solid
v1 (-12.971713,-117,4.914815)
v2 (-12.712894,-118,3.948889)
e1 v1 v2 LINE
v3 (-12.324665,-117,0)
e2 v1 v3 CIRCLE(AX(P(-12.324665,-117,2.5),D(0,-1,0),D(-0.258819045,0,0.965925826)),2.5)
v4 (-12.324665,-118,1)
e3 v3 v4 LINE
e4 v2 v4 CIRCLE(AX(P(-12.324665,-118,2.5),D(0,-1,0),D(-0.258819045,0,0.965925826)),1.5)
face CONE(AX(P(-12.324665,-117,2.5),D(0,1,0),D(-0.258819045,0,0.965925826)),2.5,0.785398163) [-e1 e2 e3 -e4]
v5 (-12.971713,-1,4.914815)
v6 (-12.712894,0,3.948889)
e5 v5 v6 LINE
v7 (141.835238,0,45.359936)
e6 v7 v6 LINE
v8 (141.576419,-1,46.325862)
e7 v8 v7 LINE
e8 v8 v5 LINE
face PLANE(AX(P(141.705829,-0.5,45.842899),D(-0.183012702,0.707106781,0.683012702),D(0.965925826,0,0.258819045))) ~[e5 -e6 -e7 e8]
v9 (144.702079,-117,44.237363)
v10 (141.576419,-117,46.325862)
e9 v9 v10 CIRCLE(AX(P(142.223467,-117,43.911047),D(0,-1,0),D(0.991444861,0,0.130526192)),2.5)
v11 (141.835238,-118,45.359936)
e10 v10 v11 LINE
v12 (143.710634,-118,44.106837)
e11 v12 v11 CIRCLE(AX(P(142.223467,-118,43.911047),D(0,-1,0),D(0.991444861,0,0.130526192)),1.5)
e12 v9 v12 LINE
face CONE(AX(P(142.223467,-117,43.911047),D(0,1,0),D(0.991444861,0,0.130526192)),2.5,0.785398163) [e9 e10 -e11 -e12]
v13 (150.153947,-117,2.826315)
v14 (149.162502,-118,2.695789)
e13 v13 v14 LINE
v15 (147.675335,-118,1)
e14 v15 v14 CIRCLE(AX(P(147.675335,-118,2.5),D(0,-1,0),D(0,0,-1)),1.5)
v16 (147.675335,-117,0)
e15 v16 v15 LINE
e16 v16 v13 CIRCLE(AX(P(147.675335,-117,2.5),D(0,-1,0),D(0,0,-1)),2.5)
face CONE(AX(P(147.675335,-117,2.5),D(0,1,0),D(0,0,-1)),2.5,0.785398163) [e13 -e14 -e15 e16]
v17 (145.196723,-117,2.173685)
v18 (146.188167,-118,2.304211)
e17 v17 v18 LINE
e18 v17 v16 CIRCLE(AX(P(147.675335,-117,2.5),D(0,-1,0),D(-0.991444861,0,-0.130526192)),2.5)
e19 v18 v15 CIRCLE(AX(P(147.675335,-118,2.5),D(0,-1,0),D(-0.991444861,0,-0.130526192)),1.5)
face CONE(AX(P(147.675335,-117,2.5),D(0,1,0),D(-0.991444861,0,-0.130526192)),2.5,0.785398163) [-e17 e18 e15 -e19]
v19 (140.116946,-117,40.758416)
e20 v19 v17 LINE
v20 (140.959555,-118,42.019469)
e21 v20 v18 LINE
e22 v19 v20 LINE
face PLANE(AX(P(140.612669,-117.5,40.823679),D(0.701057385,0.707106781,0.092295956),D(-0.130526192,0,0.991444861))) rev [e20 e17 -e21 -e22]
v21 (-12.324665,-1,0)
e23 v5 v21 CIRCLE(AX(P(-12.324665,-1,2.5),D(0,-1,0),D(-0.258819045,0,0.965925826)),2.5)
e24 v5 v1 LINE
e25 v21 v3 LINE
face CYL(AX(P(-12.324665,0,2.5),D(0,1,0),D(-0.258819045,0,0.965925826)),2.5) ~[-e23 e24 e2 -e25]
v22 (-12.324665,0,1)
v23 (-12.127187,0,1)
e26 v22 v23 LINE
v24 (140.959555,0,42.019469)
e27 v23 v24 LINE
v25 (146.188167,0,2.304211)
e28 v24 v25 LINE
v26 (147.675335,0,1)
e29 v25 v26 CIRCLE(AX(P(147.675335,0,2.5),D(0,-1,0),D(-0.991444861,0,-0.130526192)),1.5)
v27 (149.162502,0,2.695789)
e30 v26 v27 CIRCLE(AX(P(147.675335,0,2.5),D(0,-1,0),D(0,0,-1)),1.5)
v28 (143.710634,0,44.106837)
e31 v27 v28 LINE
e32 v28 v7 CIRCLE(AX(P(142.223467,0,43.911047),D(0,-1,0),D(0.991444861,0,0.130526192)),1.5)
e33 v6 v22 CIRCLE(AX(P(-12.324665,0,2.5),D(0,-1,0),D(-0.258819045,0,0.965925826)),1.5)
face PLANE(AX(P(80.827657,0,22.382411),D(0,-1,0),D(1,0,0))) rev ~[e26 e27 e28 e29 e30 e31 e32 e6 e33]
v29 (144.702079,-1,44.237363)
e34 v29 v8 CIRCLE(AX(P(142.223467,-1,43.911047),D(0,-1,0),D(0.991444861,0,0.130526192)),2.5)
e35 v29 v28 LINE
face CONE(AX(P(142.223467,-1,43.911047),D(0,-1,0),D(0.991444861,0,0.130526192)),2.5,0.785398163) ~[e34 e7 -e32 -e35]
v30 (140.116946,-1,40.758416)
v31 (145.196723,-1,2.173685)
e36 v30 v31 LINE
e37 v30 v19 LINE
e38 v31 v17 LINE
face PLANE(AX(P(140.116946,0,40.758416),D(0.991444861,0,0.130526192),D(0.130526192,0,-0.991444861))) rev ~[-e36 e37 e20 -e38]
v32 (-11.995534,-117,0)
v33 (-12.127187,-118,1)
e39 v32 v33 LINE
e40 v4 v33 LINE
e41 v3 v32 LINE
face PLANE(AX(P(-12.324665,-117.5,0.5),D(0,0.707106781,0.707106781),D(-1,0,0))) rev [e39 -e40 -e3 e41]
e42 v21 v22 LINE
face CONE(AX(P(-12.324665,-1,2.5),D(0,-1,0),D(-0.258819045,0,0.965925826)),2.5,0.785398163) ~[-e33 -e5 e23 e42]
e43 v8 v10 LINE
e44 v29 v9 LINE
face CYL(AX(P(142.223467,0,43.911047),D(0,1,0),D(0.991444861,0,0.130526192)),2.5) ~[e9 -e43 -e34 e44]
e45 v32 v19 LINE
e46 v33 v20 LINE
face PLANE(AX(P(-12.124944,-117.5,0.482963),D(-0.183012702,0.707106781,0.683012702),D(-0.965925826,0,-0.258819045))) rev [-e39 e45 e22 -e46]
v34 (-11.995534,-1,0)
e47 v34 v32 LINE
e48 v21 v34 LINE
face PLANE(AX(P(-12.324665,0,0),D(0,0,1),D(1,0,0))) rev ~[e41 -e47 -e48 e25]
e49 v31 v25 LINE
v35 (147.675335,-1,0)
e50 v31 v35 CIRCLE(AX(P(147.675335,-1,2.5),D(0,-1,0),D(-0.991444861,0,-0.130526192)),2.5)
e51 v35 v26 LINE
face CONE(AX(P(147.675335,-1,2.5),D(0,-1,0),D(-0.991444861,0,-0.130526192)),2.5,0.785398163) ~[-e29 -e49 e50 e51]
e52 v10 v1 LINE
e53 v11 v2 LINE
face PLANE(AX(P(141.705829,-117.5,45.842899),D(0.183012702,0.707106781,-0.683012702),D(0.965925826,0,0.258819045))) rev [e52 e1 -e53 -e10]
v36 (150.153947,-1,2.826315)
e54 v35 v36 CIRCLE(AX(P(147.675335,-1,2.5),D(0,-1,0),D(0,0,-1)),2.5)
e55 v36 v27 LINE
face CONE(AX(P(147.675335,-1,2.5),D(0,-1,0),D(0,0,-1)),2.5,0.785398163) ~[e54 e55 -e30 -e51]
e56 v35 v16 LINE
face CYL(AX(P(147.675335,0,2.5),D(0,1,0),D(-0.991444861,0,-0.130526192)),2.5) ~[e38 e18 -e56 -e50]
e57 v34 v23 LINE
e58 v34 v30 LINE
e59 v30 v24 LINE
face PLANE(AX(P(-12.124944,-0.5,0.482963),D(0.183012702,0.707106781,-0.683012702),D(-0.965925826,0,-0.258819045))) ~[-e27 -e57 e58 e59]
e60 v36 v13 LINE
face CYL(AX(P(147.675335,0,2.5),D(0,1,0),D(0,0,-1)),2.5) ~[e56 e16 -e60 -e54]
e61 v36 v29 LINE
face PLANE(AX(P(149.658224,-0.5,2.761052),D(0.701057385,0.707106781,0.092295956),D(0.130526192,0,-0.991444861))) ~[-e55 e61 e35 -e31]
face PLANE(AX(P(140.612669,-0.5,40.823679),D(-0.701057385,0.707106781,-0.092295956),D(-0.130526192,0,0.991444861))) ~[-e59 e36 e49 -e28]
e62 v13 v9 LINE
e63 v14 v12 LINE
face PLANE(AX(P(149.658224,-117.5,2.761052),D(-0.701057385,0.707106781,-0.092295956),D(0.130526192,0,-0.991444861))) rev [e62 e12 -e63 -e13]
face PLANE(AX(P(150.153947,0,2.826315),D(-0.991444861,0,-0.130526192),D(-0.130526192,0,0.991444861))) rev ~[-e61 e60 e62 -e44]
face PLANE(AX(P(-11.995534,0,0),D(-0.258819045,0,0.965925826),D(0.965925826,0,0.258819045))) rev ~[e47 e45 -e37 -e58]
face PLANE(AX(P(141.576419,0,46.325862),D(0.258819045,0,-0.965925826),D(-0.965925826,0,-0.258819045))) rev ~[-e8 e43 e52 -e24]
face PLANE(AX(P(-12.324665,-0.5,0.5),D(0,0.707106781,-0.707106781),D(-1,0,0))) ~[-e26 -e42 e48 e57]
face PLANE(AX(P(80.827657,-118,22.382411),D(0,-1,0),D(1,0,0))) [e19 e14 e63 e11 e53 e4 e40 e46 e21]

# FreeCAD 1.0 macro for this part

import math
import FreeCAD as App
import Part
import Sketcher
Q = App.Units.Quantity


def edges_at(feature, points):
    """Names of the edges that pass closest to the given points."""
    edges = feature.Shape.Edges
    near = lambda p: min(range(len(edges)), key=lambda i: edges[i].distToShape(Part.Vertex(*p))[0])
    return sorted({f"Edge{near(p) + 1}" for p in points})

doc = App.newDocument("Part")
params = doc.addObject("Spreadsheet::Sheet", "Params")
for row, (alias, value) in enumerate([
    ("sketch1_radius", "2.5 mm"),
    ("sketch1_length", "160 mm"),
    ("pad1_length", "118 mm"),
    ("chamfer_size", "1 mm"),
], start=1):
    params.set(f"A{row}", alias)
    params.set(f"B{row}", "=" + value)
    params.setAlias(f"B{row}", alias)

body = doc.addObject("PartDesign::Body", "Body")

# Sketch on XZ plane
sketch1 = body.newObject("Sketcher::SketchObject", "Sketch")
sketch1.AttachmentSupport = (doc.getObject("XZ_Plane"), [""])
sketch1.MapMode = "FlatFace"
sketch1.addGeometry([
    Part.ArcOfCircle(Part.Circle(App.Vector(-12.32, 2.5, 0), App.Vector(0, 0, 1), 2.5), math.radians(105), math.radians(270)),  # 0
    Part.LineSegment(App.Vector(-12.32, 0, 0), App.Vector(-12, 0, 0)),  # 1
    Part.LineSegment(App.Vector(-12, 0, 0), App.Vector(140.12, 40.76, 0)),  # 2
    Part.LineSegment(App.Vector(140.12, 40.76, 0), App.Vector(145.2, 2.17, 0)),  # 3
    Part.ArcOfCircle(Part.Circle(App.Vector(147.68, 2.5, 0), App.Vector(0, 0, 1), 2.5), math.radians(-172), math.radians(-90)),  # 4
    Part.ArcOfCircle(Part.Circle(App.Vector(147.68, 2.5, 0), App.Vector(0, 0, 1), 2.5), math.radians(-90), math.radians(8)),  # 5
    Part.LineSegment(App.Vector(150.15, 2.83, 0), App.Vector(144.7, 44.24, 0)),  # 6
    Part.ArcOfCircle(Part.Circle(App.Vector(142.22, 43.91, 0), App.Vector(0, 0, 1), 2.5), math.radians(8), math.radians(105)),  # 7
    Part.LineSegment(App.Vector(141.58, 46.33, 0), App.Vector(-12.97, 4.91, 0)),  # 8
], False)
sketch1.addConstraint([
    Sketcher.Constraint("Tangent", 0, 2, 1, 1),
    Sketcher.Constraint("Coincident", 1, 2, 2, 1),
    Sketcher.Constraint("Coincident", 2, 2, 3, 1),
    Sketcher.Constraint("Tangent", 3, 2, 4, 1),
    Sketcher.Constraint("Tangent", 4, 2, 5, 1),
    Sketcher.Constraint("Tangent", 5, 2, 6, 1),
    Sketcher.Constraint("Tangent", 6, 2, 7, 1),
    Sketcher.Constraint("Tangent", 7, 2, 8, 1),
    Sketcher.Constraint("Tangent", 8, 2, 0, 1),
    Sketcher.Constraint("Horizontal", 1),
    Sketcher.Constraint("Equal", 0, 4),
    Sketcher.Constraint("Equal", 4, 5),
    Sketcher.Constraint("Equal", 5, 7),
    Sketcher.Constraint("PointOnObject", 0, 2, -1),
    Sketcher.Constraint("PointOnObject", 4, 2, -1),
    Sketcher.Constraint("Parallel", 3, 6),
    Sketcher.Constraint("Parallel", 2, 8),
    Sketcher.Constraint("Vertical", 5, 3, 4, 2),
    Sketcher.Constraint("Radius", 0, Q("2.5 mm")),
    Sketcher.Constraint("Angle", 2, Q("15 deg")),
    Sketcher.Constraint("Distance", 8, Q("160 mm")),
    Sketcher.Constraint("Angle", 3, Q("-82.5 deg")),
    Sketcher.Constraint("DistanceX", 1, 2, 7, 3, Q("154.219001 mm")),
    Sketcher.Constraint("DistanceX", -1, 1, 6, 2, Q("144.702079 mm")),
])
sketch1.setExpression("Constraints[18]", "Params.sketch1_radius")
sketch1.setExpression("Constraints[20]", "Params.sketch1_length")
pad1 = body.newObject("PartDesign::Pad", "Pad")
pad1.Profile = sketch1
pad1.setExpression("Length", "Params.pad1_length")
doc.recompute()

chamfer = body.newObject("PartDesign::Chamfer", "Chamfer")
chamfer.Base = (pad1, edges_at(pad1, [
    (64.302, -118, 25.62),
    (-14.803, -118, 2.174),
    (-12.16, -118, 0),
    (64.061, -118, 20.379),
    (142.657, -118, 21.466),
    (149.555, -118, 0.852),
    (147.428, -118, 23.532),
    (143.612, -118, 45.99),
    (64.302, 0, 25.62),
    (-14.803, 0, 2.174),
    (-12.16, 0, 0),
    (64.061, 0, 20.379),
    (142.657, 0, 21.466),
    (149.555, 0, 0.852),
    (147.428, 0, 23.532),
    (143.612, 0, 45.99),
]))
chamfer.setExpression("Size", "Params.chamfer_size")

doc.recompute()
